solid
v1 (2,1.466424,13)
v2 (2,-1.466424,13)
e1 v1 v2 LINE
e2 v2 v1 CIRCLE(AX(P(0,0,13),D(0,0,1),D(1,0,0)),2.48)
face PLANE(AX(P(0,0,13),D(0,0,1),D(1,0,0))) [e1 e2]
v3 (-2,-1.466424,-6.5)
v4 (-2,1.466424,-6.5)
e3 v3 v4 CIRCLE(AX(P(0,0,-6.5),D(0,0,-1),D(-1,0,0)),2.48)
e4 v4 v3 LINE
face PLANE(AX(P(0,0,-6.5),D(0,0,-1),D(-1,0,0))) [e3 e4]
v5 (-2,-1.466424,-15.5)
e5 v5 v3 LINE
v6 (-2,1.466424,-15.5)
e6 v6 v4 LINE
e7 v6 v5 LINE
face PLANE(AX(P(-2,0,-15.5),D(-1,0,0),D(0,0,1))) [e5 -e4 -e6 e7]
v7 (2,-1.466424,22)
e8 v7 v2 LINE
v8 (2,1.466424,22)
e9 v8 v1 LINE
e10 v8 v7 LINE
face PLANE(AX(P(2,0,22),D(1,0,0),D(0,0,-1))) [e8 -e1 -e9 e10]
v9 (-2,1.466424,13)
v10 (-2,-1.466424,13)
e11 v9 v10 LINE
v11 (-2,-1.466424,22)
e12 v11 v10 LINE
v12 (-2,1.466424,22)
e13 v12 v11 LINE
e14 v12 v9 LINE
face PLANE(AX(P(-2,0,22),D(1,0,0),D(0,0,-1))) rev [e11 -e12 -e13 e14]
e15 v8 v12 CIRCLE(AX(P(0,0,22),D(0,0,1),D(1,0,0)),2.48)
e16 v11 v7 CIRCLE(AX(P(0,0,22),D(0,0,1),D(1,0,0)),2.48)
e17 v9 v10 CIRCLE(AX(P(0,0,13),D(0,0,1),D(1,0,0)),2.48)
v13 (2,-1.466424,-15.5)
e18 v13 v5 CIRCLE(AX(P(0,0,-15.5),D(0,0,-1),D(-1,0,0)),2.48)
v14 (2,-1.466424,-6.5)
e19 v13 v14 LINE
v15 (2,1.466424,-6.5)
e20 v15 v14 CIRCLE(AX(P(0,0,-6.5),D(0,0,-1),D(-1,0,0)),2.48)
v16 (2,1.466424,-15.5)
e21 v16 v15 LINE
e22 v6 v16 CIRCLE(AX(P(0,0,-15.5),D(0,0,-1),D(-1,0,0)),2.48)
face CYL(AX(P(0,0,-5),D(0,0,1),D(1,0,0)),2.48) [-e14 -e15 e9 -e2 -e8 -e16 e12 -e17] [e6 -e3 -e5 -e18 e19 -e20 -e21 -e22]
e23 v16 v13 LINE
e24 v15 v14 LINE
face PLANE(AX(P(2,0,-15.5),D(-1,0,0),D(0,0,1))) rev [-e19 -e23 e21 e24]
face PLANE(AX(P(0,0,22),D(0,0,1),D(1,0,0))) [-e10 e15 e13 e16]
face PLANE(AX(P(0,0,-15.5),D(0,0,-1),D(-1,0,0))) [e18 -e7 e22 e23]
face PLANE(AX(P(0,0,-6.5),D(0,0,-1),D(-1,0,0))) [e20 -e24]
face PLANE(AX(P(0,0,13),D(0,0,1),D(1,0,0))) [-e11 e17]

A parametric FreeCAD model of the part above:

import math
import FreeCAD as App
import Part
import Sketcher

V = App.Vector
Q = App.Units.Quantity

doc = App.newDocument("Part")
body = doc.addObject("PartDesign::Body", "Body")

sketch1 = doc.addObject("Sketcher::SketchObject", "Sketch")
body.addObject(sketch1)
sketch1.AttachmentSupport = (doc.XY_Plane, [""])
sketch1.MapMode = "FlatFace"
sketch1.addGeometry(Part.Circle(V(0, 0, 0), V(0, 0, 1), 2.5), False)
sketch1.addConstraint(Sketcher.Constraint("Coincident", 0, 3, -1, 1))
sketch1.addConstraint(Sketcher.Constraint("Diameter", 0, Q("4.96 mm")))
pad1 = doc.addObject("PartDesign::Pad", "Pad")
body.addObject(pad1)
pad1.Profile = sketch1
pad1.Type = "TwoLengths"
pad1.Length = 11
pad1.Length2 = 5

sketch2 = doc.addObject("Sketcher::SketchObject", "Sketch001")
body.addObject(sketch2)
sketch2.AttachmentSupport = (doc.XY_Plane, [""])
sketch2.MapMode = "FlatFace"
sketch2.AttachmentOffset = App.Placement(V(0, 0, 11), App.Rotation())
sketch2.addGeometry(Part.Circle(V(0, 0, 0), V(0, 0, 1), 2.5), False)
sketch2.addConstraint(Sketcher.Constraint("Coincident", 0, 3, -1, 1))
sketch2.addConstraint(Sketcher.Constraint("Diameter", 0, Q("4.96 mm")))
pad2 = doc.addObject("PartDesign::Pad", "Pad001")
body.addObject(pad2)
pad2.Profile = sketch2
pad2.Length = 2

sketch3 = doc.addObject("Sketcher::SketchObject", "Sketch002")
body.addObject(sketch3)
sketch3.AttachmentSupport = (doc.XY_Plane, [""])
sketch3.MapMode = "FlatFace"
sketch3.AttachmentOffset = App.Placement(V(0, 0, 13), App.Rotation())
sketch3.addGeometry(Part.ArcOfCircle(Part.Circle(V(0, 0, 0), V(0, 0, 1), 2.5), math.radians(36), math.radians(144)), False)
sketch3.addGeometry(Part.LineSegment(V(-2, 1.5, 0), V(-2, -1.5, 0)), False)
sketch3.addGeometry(Part.ArcOfCircle(Part.Circle(V(0, 0, 0), V(0, 0, 1), 2.5), math.radians(-144), math.radians(-36)), False)
sketch3.addGeometry(Part.LineSegment(V(2, -1.5, 0), V(2, 1.5, 0)), False)
sketch3.addConstraint(Sketcher.Constraint("Coincident", 0, 2, 1, 1))
sketch3.addConstraint(Sketcher.Constraint("Coincident", 1, 2, 2, 1))
sketch3.addConstraint(Sketcher.Constraint("Coincident", 2, 2, 3, 1))
sketch3.addConstraint(Sketcher.Constraint("Coincident", 3, 2, 0, 1))
sketch3.addConstraint(Sketcher.Constraint("Vertical", 1))
sketch3.addConstraint(Sketcher.Constraint("Vertical", 3))
sketch3.addConstraint(Sketcher.Constraint("Coincident", 0, 3, -1, 1))
sketch3.addConstraint(Sketcher.Constraint("Coincident", 2, 3, -1, 1))
sketch3.addConstraint(Sketcher.Constraint("Equal", 0, 2))
sketch3.addConstraint(Sketcher.Constraint("Horizontal", 1, 2, 2, 2))
sketch3.addConstraint(Sketcher.Constraint("Radius", 0, Q("2.48 mm")))
sketch3.addConstraint(Sketcher.Constraint("DistanceX", 0, 2, -1, 1, Q("2 mm")))
pad3 = doc.addObject("PartDesign::Pad", "Pad002")
body.addObject(pad3)
pad3.Profile = sketch3
pad3.Length = 9

sketch4 = doc.addObject("Sketcher::SketchObject", "Sketch003")
body.addObject(sketch4)
sketch4.AttachmentSupport = (doc.XY_Plane, [""])
sketch4.MapMode = "FlatFace"
sketch4.AttachmentOffset = App.Placement(V(0, 0, -5), App.Rotation())
sketch4.addGeometry(Part.Circle(V(0, 0, 0), V(0, 0, 1), 2.5), False)
sketch4.addConstraint(Sketcher.Constraint("Coincident", 0, 3, -1, 1))
sketch4.addConstraint(Sketcher.Constraint("Diameter", 0, Q("4.96 mm")))
pad4 = doc.addObject("PartDesign::Pad", "Pad003")
body.addObject(pad4)
pad4.Profile = sketch4
pad4.Length = 1.5
pad4.Reversed = True

sketch5 = doc.addObject("Sketcher::SketchObject", "Sketch004")
body.addObject(sketch5)
sketch5.AttachmentSupport = (doc.XY_Plane, [""])
sketch5.MapMode = "FlatFace"
sketch5.AttachmentOffset = App.Placement(V(0, 0, -6.5), App.Rotation())
sketch5.addGeometry(Part.ArcOfCircle(Part.Circle(V(0, 0, 0), V(0, 0, 1), 2.5), math.radians(36), math.radians(144)), False)
sketch5.addGeometry(Part.LineSegment(V(2, 1.5, 0), V(2, -1.5, 0)), False)
sketch5.addGeometry(Part.ArcOfCircle(Part.Circle(V(0, 0, 0), V(0, 0, 1), 2.5), math.radians(-144), math.radians(-36)), False)
sketch5.addGeometry(Part.LineSegment(V(-2, -1.5, 0), V(-2, 1.5, 0)), False)
sketch5.addConstraint(Sketcher.Constraint("Coincident", 0, 1, 1, 1))
sketch5.addConstraint(Sketcher.Constraint("Coincident", 1, 2, 2, 2))
sketch5.addConstraint(Sketcher.Constraint("Coincident", 2, 1, 3, 1))
sketch5.addConstraint(Sketcher.Constraint("Coincident", 3, 2, 0, 2))
sketch5.addConstraint(Sketcher.Constraint("Vertical", 1))
sketch5.addConstraint(Sketcher.Constraint("Vertical", 3))
sketch5.addConstraint(Sketcher.Constraint("Coincident", 0, 3, -1, 1))
sketch5.addConstraint(Sketcher.Constraint("Coincident", 2, 3, -1, 1))
sketch5.addConstraint(Sketcher.Constraint("Equal", 0, 2))
sketch5.addConstraint(Sketcher.Constraint("Horizontal", 1, 2, 2, 1))
sketch5.addConstraint(Sketcher.Constraint("Radius", 0, Q("2.48 mm")))
sketch5.addConstraint(Sketcher.Constraint("DistanceX", -1, 1, 0, 1, Q("2 mm")))
pad5 = doc.addObject("PartDesign::Pad", "Pad004")
body.addObject(pad5)
pad5.Profile = sketch5
pad5.Length = 9
pad5.Reversed = True

doc.recompute()
